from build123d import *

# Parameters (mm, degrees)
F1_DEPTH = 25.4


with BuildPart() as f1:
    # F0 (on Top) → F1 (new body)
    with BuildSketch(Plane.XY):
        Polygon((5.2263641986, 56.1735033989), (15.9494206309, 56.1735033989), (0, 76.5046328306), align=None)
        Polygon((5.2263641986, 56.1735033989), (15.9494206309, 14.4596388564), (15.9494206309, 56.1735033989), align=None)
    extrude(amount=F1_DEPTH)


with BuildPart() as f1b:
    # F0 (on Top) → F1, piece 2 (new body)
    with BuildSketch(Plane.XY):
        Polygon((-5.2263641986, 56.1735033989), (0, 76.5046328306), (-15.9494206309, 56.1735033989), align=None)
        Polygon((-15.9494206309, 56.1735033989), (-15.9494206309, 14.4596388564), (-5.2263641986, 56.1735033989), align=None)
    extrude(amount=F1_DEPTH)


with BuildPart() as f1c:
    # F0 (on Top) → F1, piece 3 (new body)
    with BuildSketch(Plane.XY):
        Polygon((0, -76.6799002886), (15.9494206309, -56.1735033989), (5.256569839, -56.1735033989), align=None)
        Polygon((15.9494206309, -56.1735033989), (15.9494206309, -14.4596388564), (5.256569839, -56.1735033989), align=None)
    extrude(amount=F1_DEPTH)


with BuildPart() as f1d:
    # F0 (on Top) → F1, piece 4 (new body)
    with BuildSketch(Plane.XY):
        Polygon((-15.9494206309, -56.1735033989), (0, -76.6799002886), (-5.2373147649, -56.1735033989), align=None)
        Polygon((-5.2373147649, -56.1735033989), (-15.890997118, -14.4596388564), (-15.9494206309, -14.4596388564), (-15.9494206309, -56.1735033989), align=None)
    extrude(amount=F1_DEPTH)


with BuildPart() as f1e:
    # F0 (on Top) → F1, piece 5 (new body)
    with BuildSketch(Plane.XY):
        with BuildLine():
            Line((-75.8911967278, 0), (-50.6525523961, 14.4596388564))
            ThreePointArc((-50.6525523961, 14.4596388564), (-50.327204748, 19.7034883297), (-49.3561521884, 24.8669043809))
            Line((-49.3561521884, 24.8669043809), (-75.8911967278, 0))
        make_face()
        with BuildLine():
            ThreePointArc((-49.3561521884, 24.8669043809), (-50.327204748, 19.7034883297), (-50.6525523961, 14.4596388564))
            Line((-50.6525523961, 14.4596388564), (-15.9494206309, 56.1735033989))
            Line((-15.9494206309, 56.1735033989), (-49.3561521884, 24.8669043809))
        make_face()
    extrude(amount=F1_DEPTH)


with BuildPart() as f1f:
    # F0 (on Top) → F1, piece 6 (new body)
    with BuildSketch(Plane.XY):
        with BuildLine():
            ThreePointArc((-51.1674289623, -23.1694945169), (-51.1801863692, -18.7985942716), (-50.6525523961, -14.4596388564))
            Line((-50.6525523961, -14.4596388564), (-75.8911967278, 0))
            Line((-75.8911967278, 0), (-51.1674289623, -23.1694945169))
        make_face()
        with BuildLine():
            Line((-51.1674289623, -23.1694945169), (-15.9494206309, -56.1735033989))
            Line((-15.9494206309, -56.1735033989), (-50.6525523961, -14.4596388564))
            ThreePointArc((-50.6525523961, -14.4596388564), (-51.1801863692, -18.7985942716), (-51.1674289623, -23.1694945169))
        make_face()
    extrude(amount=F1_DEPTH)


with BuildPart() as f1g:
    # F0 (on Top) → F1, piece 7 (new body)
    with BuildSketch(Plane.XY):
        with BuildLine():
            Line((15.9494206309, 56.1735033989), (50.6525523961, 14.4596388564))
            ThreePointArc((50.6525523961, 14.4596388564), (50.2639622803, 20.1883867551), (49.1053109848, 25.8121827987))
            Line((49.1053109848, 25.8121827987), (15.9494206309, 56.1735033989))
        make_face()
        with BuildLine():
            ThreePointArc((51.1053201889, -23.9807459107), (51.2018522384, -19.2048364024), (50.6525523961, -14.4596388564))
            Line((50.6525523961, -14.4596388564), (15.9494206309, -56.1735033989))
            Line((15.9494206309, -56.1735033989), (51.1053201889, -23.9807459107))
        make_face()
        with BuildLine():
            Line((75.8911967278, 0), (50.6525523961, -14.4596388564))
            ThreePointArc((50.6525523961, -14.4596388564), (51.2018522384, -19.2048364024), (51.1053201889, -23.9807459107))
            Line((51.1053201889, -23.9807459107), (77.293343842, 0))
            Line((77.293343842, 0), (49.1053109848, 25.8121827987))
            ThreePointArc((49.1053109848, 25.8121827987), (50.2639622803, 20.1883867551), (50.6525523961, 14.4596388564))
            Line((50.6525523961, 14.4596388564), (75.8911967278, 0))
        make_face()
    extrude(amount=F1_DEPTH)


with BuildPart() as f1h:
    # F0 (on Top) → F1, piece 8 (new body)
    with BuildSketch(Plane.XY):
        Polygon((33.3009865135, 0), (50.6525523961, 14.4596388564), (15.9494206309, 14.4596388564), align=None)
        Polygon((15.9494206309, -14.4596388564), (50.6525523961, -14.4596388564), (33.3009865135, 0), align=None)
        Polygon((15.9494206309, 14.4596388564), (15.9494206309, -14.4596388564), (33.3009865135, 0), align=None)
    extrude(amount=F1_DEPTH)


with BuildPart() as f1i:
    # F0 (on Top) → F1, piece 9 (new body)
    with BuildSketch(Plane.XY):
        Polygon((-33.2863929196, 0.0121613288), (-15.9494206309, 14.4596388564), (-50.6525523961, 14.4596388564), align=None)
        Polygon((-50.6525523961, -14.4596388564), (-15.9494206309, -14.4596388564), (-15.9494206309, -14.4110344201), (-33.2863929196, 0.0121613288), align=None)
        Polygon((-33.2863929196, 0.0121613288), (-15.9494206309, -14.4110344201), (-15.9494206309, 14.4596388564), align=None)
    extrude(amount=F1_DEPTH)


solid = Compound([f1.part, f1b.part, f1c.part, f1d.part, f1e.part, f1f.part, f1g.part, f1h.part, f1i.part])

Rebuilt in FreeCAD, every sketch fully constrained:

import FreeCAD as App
import Part
import Sketcher
from FreeCAD import Vector
Q = App.Units.Quantity

doc = App.newDocument("Part")
body = doc.addObject("PartDesign::Body", "Body")

# Sketch on XY plane
sketch1 = doc.addObject("Sketcher::SketchObject", "Sketch")
body.addObject(sketch1)
sketch1.AttachmentSupport = (doc.XY_Plane, [""])
sketch1.MapMode = "FlatFace"
sketch1.addGeometry([
    Part.LineSegment(Vector(16, 56, 0), Vector(0, 77, 0)),
    Part.LineSegment(Vector(0, 77, 0), Vector(5, 56, 0)),
    Part.LineSegment(Vector(5, 56, 0), Vector(16, 14, 0)),
    Part.LineSegment(Vector(16, 14, 0), Vector(16, 56, 0)),
], False)
sketch1.addConstraint([
    Sketcher.Constraint("Coincident", 0, 2, 1, 1),
    Sketcher.Constraint("Coincident", 1, 2, 2, 1),
    Sketcher.Constraint("Coincident", 2, 2, 3, 1),
    Sketcher.Constraint("Coincident", 3, 2, 0, 1),
    Sketcher.Constraint("Vertical", 3),
    Sketcher.Constraint("PointOnObject", 0, 2, -2),
    Sketcher.Constraint("Parallel", 1, 2),
    Sketcher.Constraint("Horizontal", 1, 2, 3, 2),
    Sketcher.Constraint("DistanceY", 3, 1, 3, 2, Q("41.713865 mm")),
    Sketcher.Constraint("DistanceX", -1, 1, 2, 2, Q("15.949421 mm")),
    Sketcher.Constraint("DistanceY", -1, 1, 2, 2, Q("14.459639 mm")),
    Sketcher.Constraint("DistanceY", 1, 2, 0, 2, Q("20.331129 mm")),
])
pad1 = doc.addObject("PartDesign::Pad", "Pad")
body.addObject(pad1)
pad1.Profile = sketch1
pad1.Length = Q("1 in")
body2 = doc.addObject("PartDesign::Body", "Body001")

# Sketch on XY plane
sketch2 = doc.addObject("Sketcher::SketchObject", "Sketch001")
body2.addObject(sketch2)
sketch2.AttachmentSupport = (doc.getObject("XY_Plane001"), [""])
sketch2.MapMode = "FlatFace"
sketch2.addGeometry([
    Part.LineSegment(Vector(-5, 56, 0), Vector(0, 77, 0)),
    Part.LineSegment(Vector(0, 77, 0), Vector(-16, 56, 0)),
    Part.LineSegment(Vector(-16, 56, 0), Vector(-16, 14, 0)),
    Part.LineSegment(Vector(-16, 14, 0), Vector(-5, 56, 0)),
], False)
sketch2.addConstraint([
    Sketcher.Constraint("Coincident", 0, 2, 1, 1),
    Sketcher.Constraint("Coincident", 1, 2, 2, 1),
    Sketcher.Constraint("Coincident", 2, 2, 3, 1),
    Sketcher.Constraint("Coincident", 3, 2, 0, 1),
    Sketcher.Constraint("Vertical", 2),
    Sketcher.Constraint("PointOnObject", 0, 2, -2),
    Sketcher.Constraint("Parallel", 0, 3),
    Sketcher.Constraint("Horizontal", 1, 2, 3, 2),
    Sketcher.Constraint("DistanceY", 2, 2, 2, 1, Q("41.713865 mm")),
    Sketcher.Constraint("DistanceX", 1, 2, -1, 1, Q("15.949421 mm")),
    Sketcher.Constraint("DistanceY", -1, 1, 2, 2, Q("14.459639 mm")),
    Sketcher.Constraint("DistanceY", 1, 2, 0, 2, Q("20.331129 mm")),
])
pad2 = doc.addObject("PartDesign::Pad", "Pad001")
body2.addObject(pad2)
pad2.Profile = sketch2
pad2.Length = Q("1 in")
body3 = doc.addObject("PartDesign::Body", "Body002")

# Sketch on XY plane
sketch3 = doc.addObject("Sketcher::SketchObject", "Sketch002")
body3.addObject(sketch3)
sketch3.AttachmentSupport = (doc.getObject("XY_Plane002"), [""])
sketch3.MapMode = "FlatFace"
sketch3.addGeometry([
    Part.LineSegment(Vector(0, -77, 0), Vector(16, -56, 0)),
    Part.LineSegment(Vector(16, -56, 0), Vector(16, -14, 0)),
    Part.LineSegment(Vector(16, -14, 0), Vector(5, -56, 0)),
    Part.LineSegment(Vector(5, -56, 0), Vector(0, -77, 0)),
], False)
sketch3.addConstraint([
    Sketcher.Constraint("Coincident", 0, 2, 1, 1),
    Sketcher.Constraint("Coincident", 1, 2, 2, 1),
    Sketcher.Constraint("Coincident", 2, 2, 3, 1),
    Sketcher.Constraint("Coincident", 3, 2, 0, 1),
    Sketcher.Constraint("Vertical", 1),
    Sketcher.Constraint("PointOnObject", 3, 2, -2),
    Sketcher.Constraint("Parallel", 2, 3),
    Sketcher.Constraint("Horizontal", 0, 2, 2, 2),
    Sketcher.Constraint("DistanceY", 3, 2, -1, 1, Q("76.6799 mm")),
    Sketcher.Constraint("Distance", 3, Q("21.169408 mm")),
    Sketcher.Constraint("DistanceY", 1, 1, 1, 2, Q("41.713865 mm")),
    Sketcher.Constraint("DistanceX", -1, 1, 0, 2, Q("15.949421 mm")),
])
pad3 = doc.addObject("PartDesign::Pad", "Pad002")
body3.addObject(pad3)
pad3.Profile = sketch3
pad3.Length = Q("1 in")
body4 = doc.addObject("PartDesign::Body", "Body003")

# Sketch on XY plane
sketch4 = doc.addObject("Sketcher::SketchObject", "Sketch003")
body4.addObject(sketch4)
sketch4.AttachmentSupport = (doc.getObject("XY_Plane003"), [""])
sketch4.MapMode = "FlatFace"
sketch4.addGeometry([
    Part.LineSegment(Vector(-15.95, -56.17, 0), Vector(0, -76.68, 0)),
    Part.LineSegment(Vector(0, -76.68, 0), Vector(-15.89, -14.46, 0)),
    Part.LineSegment(Vector(-15.89, -14.46, 0), Vector(-15.95, -14.46, 0)),
    Part.LineSegment(Vector(-15.95, -14.46, 0), Vector(-15.95, -56.17, 0)),
], False)
sketch4.addConstraint([
    Sketcher.Constraint("Coincident", 0, 2, 1, 1),
    Sketcher.Constraint("Coincident", 1, 2, 2, 1),
    Sketcher.Constraint("Coincident", 2, 2, 3, 1),
    Sketcher.Constraint("Coincident", 3, 2, 0, 1),
    Sketcher.Constraint("Horizontal", 2),
    Sketcher.Constraint("Vertical", 3),
    Sketcher.Constraint("PointOnObject", 0, 2, -2),
    Sketcher.Constraint("DistanceX", 2, 2, 2, 1, Q("0.0023001 in")),
    Sketcher.Constraint("DistanceY", 0, 2, -1, 1, Q("76.6799 mm")),
    Sketcher.Constraint("Distance", 1, Q("64.21748 mm")),
    Sketcher.Constraint("DistanceY", 3, 2, 3, 1, Q("41.713865 mm")),
    Sketcher.Constraint("DistanceY", 1, 2, -1, 1, Q("14.459639 mm")),
])
pad4 = doc.addObject("PartDesign::Pad", "Pad003")
body4.addObject(pad4)
pad4.Profile = sketch4
pad4.Length = Q("1 in")
body5 = doc.addObject("PartDesign::Body", "Body004")

# Sketch on XY plane
sketch5 = doc.addObject("Sketcher::SketchObject", "Sketch004")
body5.addObject(sketch5)
sketch5.AttachmentSupport = (doc.getObject("XY_Plane004"), [""])
sketch5.MapMode = "FlatFace"
sketch5.addGeometry([
    Part.LineSegment(Vector(-76, 0, 0), Vector(-51, 14, 0)),
    Part.LineSegment(Vector(-51, 14, 0), Vector(-16, 56, 0)),
    Part.LineSegment(Vector(-16, 56, 0), Vector(-76, 0, 0)),
], False)
sketch5.addConstraint([
    Sketcher.Constraint("Coincident", 0, 2, 1, 1),
    Sketcher.Constraint("Coincident", 1, 2, 2, 1),
    Sketcher.Constraint("Coincident", 2, 2, 0, 1),
    Sketcher.Constraint("PointOnObject", 2, 2, -1),
    Sketcher.Constraint("Distance", 1, Q("54.261901 mm")),
    Sketcher.Constraint("Distance", 0, Q("29.087288 mm")),
    Sketcher.Constraint("DistanceY", -1, 1, 0, 2, Q("14.459639 mm")),
    Sketcher.Constraint("DistanceX", 1, 2, -1, 1, Q("15.949421 mm")),
    Sketcher.Constraint("DistanceX", 0, 2, 1, 2, Q("34.703132 mm")),
])
pad5 = doc.addObject("PartDesign::Pad", "Pad004")
body5.addObject(pad5)
pad5.Profile = sketch5
pad5.Length = Q("1 in")
body6 = doc.addObject("PartDesign::Body", "Body005")

# Sketch on XY plane
sketch6 = doc.addObject("Sketcher::SketchObject", "Sketch005")
body6.addObject(sketch6)
sketch6.AttachmentSupport = (doc.getObject("XY_Plane005"), [""])
sketch6.MapMode = "FlatFace"
sketch6.addGeometry([
    Part.LineSegment(Vector(-51, -14, 0), Vector(-76, 0, 0)),
    Part.LineSegment(Vector(-76, 0, 0), Vector(-16, -56, 0)),
    Part.LineSegment(Vector(-16, -56, 0), Vector(-51, -14, 0)),
], False)
sketch6.addConstraint([
    Sketcher.Constraint("Coincident", 0, 2, 1, 1),
    Sketcher.Constraint("Coincident", 1, 2, 2, 1),
    Sketcher.Constraint("Coincident", 2, 2, 0, 1),
    Sketcher.Constraint("PointOnObject", 0, 2, -1),
    Sketcher.Constraint("Distance", 2, Q("54.261901 mm")),
    Sketcher.Constraint("Distance", 0, Q("29.087288 mm")),
    Sketcher.Constraint("DistanceX", 1, 2, -1, 1, Q("15.949421 mm")),
    Sketcher.Constraint("DistanceY", 2, 2, -1, 1, Q("14.459639 mm")),
    Sketcher.Constraint("DistanceX", 2, 2, 1, 2, Q("34.703132 mm")),
])
pad6 = doc.addObject("PartDesign::Pad", "Pad005")
body6.addObject(pad6)
pad6.Profile = sketch6
pad6.Length = Q("1 in")
body7 = doc.addObject("PartDesign::Body", "Body006")

# Sketch on XY plane
sketch7 = doc.addObject("Sketcher::SketchObject", "Sketch006")
body7.addObject(sketch7)
sketch7.AttachmentSupport = (doc.getObject("XY_Plane006"), [""])
sketch7.MapMode = "FlatFace"
sketch7.addGeometry([
    Part.LineSegment(Vector(16, 56, 0), Vector(51, 14, 0)),  # 0
    Part.LineSegment(Vector(51, 14, 0), Vector(76, 0, 0)),  # 1
    Part.LineSegment(Vector(76, 0, 0), Vector(51, -14, 0)),  # 2
    Part.LineSegment(Vector(51, -14, 0), Vector(16, -56, 0)),  # 3
    Part.LineSegment(Vector(16, -56, 0), Vector(51, -24, 0)),  # 4
    Part.LineSegment(Vector(51, -24, 0), Vector(77, 0, 0)),  # 5
    Part.LineSegment(Vector(77, 0, 0), Vector(49, 26, 0)),  # 6
    Part.LineSegment(Vector(49, 26, 0), Vector(16, 56, 0)),  # 7
], False)
sketch7.addConstraint([
    Sketcher.Constraint("Coincident", 0, 2, 1, 1),
    Sketcher.Constraint("Coincident", 1, 2, 2, 1),
    Sketcher.Constraint("Coincident", 2, 2, 3, 1),
    Sketcher.Constraint("Coincident", 3, 2, 4, 1),
    Sketcher.Constraint("Coincident", 4, 2, 5, 1),
    Sketcher.Constraint("Coincident", 5, 2, 6, 1),
    Sketcher.Constraint("Coincident", 6, 2, 7, 1),
    Sketcher.Constraint("Coincident", 7, 2, 0, 1),
    Sketcher.Constraint("Symmetric", 0, 2, 2, 2, -1),
    Sketcher.Constraint("Symmetric", 3, 2, 7, 2, -1),
    Sketcher.Constraint("PointOnObject", 1, 2, -1),
    Sketcher.Constraint("PointOnObject", 5, 2, -1),
    Sketcher.Constraint("Parallel", 4, 5),
    Sketcher.Constraint("Parallel", 6, 7),
    Sketcher.Constraint("Distance", 0, Q("54.261901 mm")),
    Sketcher.Constraint("Distance", 7, Q("44.9569 mm")),
    Sketcher.Constraint("DistanceX", 3, 2, 4, 2, Q("35.1559 mm")),
    Sketcher.Constraint("Distance", 1, Q("29.087288 mm")),
    Sketcher.Constraint("DistanceY", -1, 1, 0, 2, Q("14.459639 mm")),
    Sketcher.Constraint("DistanceX", -1, 1, 3, 2, Q("15.949421 mm")),
    Sketcher.Constraint("DistanceX", -1, 1, 6, 2, Q("49.105311 mm")),
    Sketcher.Constraint("DistanceX", 3, 2, 2, 2, Q("34.703132 mm")),
])
pad7 = doc.addObject("PartDesign::Pad", "Pad006")
body7.addObject(pad7)
pad7.Profile = sketch7
pad7.Length = Q("1 in")
body8 = doc.addObject("PartDesign::Body", "Body007")

# Sketch on XY plane
sketch8 = doc.addObject("Sketcher::SketchObject", "Sketch007")
body8.addObject(sketch8)
sketch8.AttachmentSupport = (doc.getObject("XY_Plane007"), [""])
sketch8.MapMode = "FlatFace"
sketch8.addGeometry([
    Part.LineSegment(Vector(33, 0, 0), Vector(51, 14, 0)),  # 0
    Part.LineSegment(Vector(51, 14, 0), Vector(16, 14, 0)),  # 1
    Part.LineSegment(Vector(16, 14, 0), Vector(16, -14, 0)),  # 2
    Part.LineSegment(Vector(16, -14, 0), Vector(51, -14, 0)),  # 3
    Part.LineSegment(Vector(51, -14, 0), Vector(33, 0, 0)),  # 4
], False)
sketch8.addConstraint([
    Sketcher.Constraint("Coincident", 0, 2, 1, 1),
    Sketcher.Constraint("Coincident", 1, 2, 2, 1),
    Sketcher.Constraint("Coincident", 2, 2, 3, 1),
    Sketcher.Constraint("Coincident", 3, 2, 4, 1),
    Sketcher.Constraint("Coincident", 4, 2, 0, 1),
    Sketcher.Constraint("Horizontal", 1),
    Sketcher.Constraint("Vertical", 2),
    Sketcher.Constraint("Horizontal", 3),
    Sketcher.Constraint("Symmetric", 0, 2, 3, 2, -1),
    Sketcher.Constraint("PointOnObject", 4, 2, -1),
    Sketcher.Constraint("DistanceX", 1, 2, 1, 1, Q("34.703132 mm")),
    Sketcher.Constraint("DistanceY", 2, 2, 2, 1, Q("28.919278 mm")),
    Sketcher.Constraint("DistanceX", -1, 1, 1, 2, Q("15.949421 mm")),
    Sketcher.Constraint("Distance", 0, Q("22.586677 mm")),
])
pad8 = doc.addObject("PartDesign::Pad", "Pad007")
body8.addObject(pad8)
pad8.Profile = sketch8
pad8.Length = Q("1 in")
body9 = doc.addObject("PartDesign::Body", "Body008")

# Sketch on XY plane
sketch9 = doc.addObject("Sketcher::SketchObject", "Sketch008")
body9.addObject(sketch9)
sketch9.AttachmentSupport = (doc.getObject("XY_Plane008"), [""])
sketch9.MapMode = "FlatFace"
sketch9.addGeometry([
    Part.LineSegment(Vector(-16, 14, 0), Vector(-51, 14, 0)),  # 0
    Part.LineSegment(Vector(-51, 14, 0), Vector(-33, 0, 0)),  # 1
    Part.LineSegment(Vector(-33, 0, 0), Vector(-51, -14, 0)),  # 2
    Part.LineSegment(Vector(-51, -14, 0), Vector(-16, -14, 0)),  # 3
    Part.LineSegment(Vector(-16, -14, 0), Vector(-16, 14, 0)),  # 4
], False)
sketch9.addConstraint([
    Sketcher.Constraint("Coincident", 0, 2, 1, 1),
    Sketcher.Constraint("Coincident", 1, 2, 2, 1),
    Sketcher.Constraint("Coincident", 2, 2, 3, 1),
    Sketcher.Constraint("Coincident", 3, 2, 4, 1),
    Sketcher.Constraint("Coincident", 4, 2, 0, 1),
    Sketcher.Constraint("Horizontal", 0),
    Sketcher.Constraint("Horizontal", 3),
    Sketcher.Constraint("Vertical", 4),
    Sketcher.Constraint("Symmetric", 0, 2, 2, 2, -1),
    Sketcher.Constraint("DistanceX", 0, 2, 0, 1, Q("34.703132 mm")),
    Sketcher.Constraint("DistanceY", 2, 2, 1, 2, Q("14.4718 mm")),
    Sketcher.Constraint("Distance", 1, Q("22.590111 mm")),
    Sketcher.Constraint("DistanceY", 4, 1, 4, 2, Q("28.919278 mm")),
    Sketcher.Constraint("DistanceX", 3, 2, -1, 1, Q("15.949421 mm")),
])
pad9 = doc.addObject("PartDesign::Pad", "Pad008")
body9.addObject(pad9)
pad9.Profile = sketch9
pad9.Length = Q("1 in")

doc.recompute()
